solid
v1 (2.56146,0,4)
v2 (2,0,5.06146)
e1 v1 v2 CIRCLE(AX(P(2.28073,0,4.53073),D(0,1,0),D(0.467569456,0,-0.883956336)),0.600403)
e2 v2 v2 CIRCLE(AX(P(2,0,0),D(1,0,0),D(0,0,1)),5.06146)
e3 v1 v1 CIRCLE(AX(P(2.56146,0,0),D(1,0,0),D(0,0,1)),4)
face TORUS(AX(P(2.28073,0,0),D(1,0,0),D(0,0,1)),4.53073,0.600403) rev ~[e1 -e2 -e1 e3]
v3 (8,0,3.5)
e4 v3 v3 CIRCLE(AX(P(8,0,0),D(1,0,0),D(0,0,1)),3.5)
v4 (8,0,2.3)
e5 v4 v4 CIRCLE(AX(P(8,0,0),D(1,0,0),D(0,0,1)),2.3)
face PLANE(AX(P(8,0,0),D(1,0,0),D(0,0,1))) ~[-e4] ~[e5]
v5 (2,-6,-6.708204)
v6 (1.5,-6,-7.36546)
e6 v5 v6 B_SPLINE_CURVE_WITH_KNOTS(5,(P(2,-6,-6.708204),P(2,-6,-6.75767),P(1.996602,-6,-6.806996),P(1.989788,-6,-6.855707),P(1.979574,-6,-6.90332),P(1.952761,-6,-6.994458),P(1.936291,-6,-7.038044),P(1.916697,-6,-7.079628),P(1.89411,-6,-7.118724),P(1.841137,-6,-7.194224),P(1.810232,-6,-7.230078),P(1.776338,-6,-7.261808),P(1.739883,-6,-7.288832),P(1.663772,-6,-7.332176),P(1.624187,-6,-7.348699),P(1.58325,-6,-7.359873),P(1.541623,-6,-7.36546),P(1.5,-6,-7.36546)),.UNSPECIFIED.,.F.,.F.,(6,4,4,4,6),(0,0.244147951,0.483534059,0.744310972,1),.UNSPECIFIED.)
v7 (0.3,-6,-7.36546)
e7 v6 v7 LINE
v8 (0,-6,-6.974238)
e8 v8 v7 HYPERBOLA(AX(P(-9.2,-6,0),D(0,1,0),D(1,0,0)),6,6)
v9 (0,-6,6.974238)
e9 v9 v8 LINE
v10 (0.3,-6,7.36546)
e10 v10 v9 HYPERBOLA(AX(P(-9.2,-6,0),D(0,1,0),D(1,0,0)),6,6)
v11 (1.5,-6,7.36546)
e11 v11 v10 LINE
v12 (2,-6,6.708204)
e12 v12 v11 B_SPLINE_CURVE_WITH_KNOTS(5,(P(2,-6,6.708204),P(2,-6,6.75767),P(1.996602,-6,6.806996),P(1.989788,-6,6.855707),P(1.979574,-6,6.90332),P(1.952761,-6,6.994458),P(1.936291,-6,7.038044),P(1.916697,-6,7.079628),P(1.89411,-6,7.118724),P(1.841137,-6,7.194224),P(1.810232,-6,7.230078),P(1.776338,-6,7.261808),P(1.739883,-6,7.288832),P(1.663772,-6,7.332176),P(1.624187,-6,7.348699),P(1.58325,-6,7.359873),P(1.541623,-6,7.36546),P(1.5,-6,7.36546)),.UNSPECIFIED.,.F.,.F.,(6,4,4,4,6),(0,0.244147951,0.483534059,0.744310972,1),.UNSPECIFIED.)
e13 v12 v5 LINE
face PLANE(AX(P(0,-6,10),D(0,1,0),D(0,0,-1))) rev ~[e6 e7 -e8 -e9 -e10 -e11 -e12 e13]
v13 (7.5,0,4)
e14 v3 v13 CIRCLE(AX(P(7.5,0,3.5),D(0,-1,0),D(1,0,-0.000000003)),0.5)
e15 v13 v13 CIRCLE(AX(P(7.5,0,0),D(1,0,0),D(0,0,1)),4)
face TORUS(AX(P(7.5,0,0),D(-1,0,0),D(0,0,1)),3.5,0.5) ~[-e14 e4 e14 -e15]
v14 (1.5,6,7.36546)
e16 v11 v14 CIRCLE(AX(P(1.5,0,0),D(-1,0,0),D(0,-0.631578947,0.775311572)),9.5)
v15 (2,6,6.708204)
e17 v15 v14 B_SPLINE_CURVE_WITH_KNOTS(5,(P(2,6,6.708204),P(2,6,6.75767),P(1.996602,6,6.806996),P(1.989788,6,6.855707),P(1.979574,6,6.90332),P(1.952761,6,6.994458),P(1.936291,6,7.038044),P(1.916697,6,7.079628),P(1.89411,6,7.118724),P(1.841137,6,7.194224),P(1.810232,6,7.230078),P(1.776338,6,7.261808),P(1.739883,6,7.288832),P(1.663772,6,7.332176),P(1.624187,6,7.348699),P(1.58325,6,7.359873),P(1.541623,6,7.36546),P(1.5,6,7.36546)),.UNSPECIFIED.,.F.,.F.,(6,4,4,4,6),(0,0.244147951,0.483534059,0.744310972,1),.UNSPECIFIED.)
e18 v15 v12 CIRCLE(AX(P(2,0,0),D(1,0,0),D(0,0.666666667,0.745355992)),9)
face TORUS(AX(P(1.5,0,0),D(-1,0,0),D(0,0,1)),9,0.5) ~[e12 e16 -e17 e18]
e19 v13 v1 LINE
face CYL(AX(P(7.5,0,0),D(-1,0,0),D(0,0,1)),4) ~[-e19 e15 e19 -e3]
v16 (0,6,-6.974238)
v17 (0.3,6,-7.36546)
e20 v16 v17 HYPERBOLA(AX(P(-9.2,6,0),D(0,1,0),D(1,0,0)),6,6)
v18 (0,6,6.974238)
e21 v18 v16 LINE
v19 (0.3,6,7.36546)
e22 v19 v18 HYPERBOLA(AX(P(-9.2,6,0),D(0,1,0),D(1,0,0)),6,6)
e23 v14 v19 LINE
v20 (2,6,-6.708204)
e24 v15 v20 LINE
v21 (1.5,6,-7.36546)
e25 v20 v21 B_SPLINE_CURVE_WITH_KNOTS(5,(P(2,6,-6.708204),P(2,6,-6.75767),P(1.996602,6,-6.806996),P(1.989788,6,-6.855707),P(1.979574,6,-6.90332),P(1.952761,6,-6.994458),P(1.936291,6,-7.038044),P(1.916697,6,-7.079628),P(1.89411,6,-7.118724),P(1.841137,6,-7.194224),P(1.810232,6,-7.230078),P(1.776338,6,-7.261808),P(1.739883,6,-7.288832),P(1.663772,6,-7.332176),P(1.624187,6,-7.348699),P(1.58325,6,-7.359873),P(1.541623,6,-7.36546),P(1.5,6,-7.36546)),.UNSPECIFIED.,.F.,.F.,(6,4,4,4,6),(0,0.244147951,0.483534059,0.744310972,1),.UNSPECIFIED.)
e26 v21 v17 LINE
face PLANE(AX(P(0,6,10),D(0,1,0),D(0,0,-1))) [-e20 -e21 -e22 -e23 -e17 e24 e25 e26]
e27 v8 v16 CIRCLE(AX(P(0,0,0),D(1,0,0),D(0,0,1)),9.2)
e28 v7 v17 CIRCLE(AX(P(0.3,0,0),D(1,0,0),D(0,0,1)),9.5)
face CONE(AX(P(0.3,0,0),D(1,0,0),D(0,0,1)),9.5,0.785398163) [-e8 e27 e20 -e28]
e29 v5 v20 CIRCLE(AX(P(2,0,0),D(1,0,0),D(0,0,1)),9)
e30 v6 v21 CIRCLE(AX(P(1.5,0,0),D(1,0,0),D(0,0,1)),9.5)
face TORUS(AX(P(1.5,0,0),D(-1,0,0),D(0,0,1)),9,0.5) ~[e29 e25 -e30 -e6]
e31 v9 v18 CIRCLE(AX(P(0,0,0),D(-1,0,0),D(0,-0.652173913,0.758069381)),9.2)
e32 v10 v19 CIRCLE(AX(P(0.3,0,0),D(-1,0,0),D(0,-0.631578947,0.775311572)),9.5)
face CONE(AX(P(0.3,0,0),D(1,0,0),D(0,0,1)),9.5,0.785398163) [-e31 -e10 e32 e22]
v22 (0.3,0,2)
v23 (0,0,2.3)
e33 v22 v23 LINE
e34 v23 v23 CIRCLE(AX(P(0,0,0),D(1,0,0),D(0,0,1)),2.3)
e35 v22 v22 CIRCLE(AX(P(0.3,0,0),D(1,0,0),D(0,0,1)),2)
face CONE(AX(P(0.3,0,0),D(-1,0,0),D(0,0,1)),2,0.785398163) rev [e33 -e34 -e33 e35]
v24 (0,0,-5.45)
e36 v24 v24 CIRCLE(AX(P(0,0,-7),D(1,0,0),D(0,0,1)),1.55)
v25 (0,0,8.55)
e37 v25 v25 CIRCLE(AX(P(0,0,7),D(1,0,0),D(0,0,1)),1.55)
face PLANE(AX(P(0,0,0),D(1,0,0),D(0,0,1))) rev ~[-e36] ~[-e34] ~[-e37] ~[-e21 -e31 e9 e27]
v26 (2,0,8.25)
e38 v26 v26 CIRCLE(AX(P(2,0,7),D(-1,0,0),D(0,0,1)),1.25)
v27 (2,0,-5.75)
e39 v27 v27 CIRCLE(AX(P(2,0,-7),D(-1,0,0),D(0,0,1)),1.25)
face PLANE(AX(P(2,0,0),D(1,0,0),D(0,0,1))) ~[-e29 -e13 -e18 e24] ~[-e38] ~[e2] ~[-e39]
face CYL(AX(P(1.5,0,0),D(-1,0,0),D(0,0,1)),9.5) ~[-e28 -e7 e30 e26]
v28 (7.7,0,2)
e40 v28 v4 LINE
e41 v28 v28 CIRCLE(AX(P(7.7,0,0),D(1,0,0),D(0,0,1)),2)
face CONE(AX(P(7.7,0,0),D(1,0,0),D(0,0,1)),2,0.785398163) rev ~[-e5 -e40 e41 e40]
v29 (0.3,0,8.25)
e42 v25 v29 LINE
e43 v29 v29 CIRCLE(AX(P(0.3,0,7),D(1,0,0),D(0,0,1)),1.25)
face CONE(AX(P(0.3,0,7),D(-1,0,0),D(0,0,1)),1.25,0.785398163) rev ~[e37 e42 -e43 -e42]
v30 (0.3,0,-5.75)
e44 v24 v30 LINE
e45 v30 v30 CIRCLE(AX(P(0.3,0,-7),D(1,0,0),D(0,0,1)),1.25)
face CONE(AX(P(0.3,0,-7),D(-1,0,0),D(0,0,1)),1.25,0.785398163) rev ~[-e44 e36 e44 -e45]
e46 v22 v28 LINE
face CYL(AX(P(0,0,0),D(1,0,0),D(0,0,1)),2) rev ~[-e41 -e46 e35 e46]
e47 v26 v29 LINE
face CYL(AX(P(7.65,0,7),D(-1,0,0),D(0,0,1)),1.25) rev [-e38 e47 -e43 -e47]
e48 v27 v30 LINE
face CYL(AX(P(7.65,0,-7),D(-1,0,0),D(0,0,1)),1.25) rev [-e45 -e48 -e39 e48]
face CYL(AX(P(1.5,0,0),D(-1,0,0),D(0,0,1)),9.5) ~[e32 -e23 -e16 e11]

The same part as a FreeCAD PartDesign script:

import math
import FreeCAD as App
import Part
import Sketcher
from FreeCAD import Vector
Q = App.Units.Quantity


def edges_at(feature, points):
    """Names of the edges that pass closest to the given points."""
    edges = feature.Shape.Edges
    near = lambda p: min(range(len(edges)), key=lambda i: edges[i].distToShape(Part.Vertex(*p))[0])
    return sorted({f"Edge{near(p) + 1}" for p in points})


def add_polygon(sketch, points):
    """Adds a closed chain of lines whose ends are joined by coincident constraints."""
    first, n = sketch.GeometryCount, len(points)
    for a, b in zip(points, points[1:] + points[:1]):
        sketch.addGeometry(Part.LineSegment(App.Vector(*a, 0), App.Vector(*b, 0)), False)
    for i in range(n):
        sketch.addConstraint(Sketcher.Constraint("Coincident", first + i, 2, first + (i + 1) % n, 1))

doc = App.newDocument("Part")
params = doc.addObject("Spreadsheet::Sheet", "Params")
for row, (alias, value) in enumerate([
    ("sketch1_radius", "0.5 mm"),
    ("sketch1_width", "8 mm"),
    ("sketch1_width2", "1.5 mm"),
    ("sketch1_height", "7.5 mm"),
    ("revolution_angle", "360 deg"),
    ("sketch2_width", "8 mm"),
    ("sketch2_height", "1.6 mm"),
    ("sketch2_width2", "7.65 mm"),
    ("groove_angle", "360 deg"),
    ("linearpattern_pitch", "14 mm"),
    ("chamfer_size", "0.3 mm"),
    ("sketch3_width", "12 mm"),
    ("sketch3_height", "20 mm"),
    ("pocket1_length", "10 mm"),
], start=1):
    params.set(f"A{row}", alias)
    params.set(f"B{row}", "=" + value)
    params.setAlias(f"B{row}", alias)

body = doc.addObject("PartDesign::Body", "Body")

# Sketch on XY plane
sketch1 = body.newObject("Sketcher::SketchObject", "Sketch")
sketch1.AttachmentSupport = (doc.getObject("XY_Plane"), [""])
sketch1.MapMode = "FlatFace"
sketch1.addGeometry(Part.LineSegment(Vector(0, 2, 0), Vector(8, 2, 0)), False)
sketch1.addGeometry(Part.LineSegment(Vector(8, 2, 0), Vector(8, 3.5, 0)), False)
sketch1.addGeometry(Part.ArcOfCircle(Part.Circle(Vector(7.5, 3.5, 0), Vector(0, 0, 1), 0.5), math.radians(0), math.radians(90)), False)
sketch1.addGeometry(Part.LineSegment(Vector(7.5, 4, 0), Vector(2.56146, 4, 0)), False)
sketch1.addGeometry(Part.ArcOfCircle(Part.Circle(Vector(2.28073, 4.53073, 0), Vector(0, 0, 1), 0.600403), math.radians(117.87664), math.radians(297.87664)), False)
sketch1.addGeometry(Part.LineSegment(Vector(2, 5.06146, 0), Vector(2, 9, 0)), False)
sketch1.addGeometry(Part.ArcOfCircle(Part.Circle(Vector(1.5, 9, 0), Vector(0, 0, 1), 0.5), math.radians(0), math.radians(90)), False)
sketch1.addGeometry(Part.LineSegment(Vector(1.5, 9.5, 0), Vector(0, 9.5, 0)), False)
sketch1.addGeometry(Part.LineSegment(Vector(0, 9.5, 0), Vector(0, 2, 0)), False)
sketch1.addConstraint(Sketcher.Constraint("Coincident", 0, 2, 1, 1))
sketch1.addConstraint(Sketcher.Constraint("Tangent", 1, 2, 2, 1))
sketch1.addConstraint(Sketcher.Constraint("Tangent", 2, 2, 3, 1))
sketch1.addConstraint(Sketcher.Constraint("Coincident", 3, 2, 4, 2))
sketch1.addConstraint(Sketcher.Constraint("Coincident", 4, 1, 5, 1))
sketch1.addConstraint(Sketcher.Constraint("Tangent", 5, 2, 6, 1))
sketch1.addConstraint(Sketcher.Constraint("Tangent", 6, 2, 7, 1))
sketch1.addConstraint(Sketcher.Constraint("Coincident", 7, 2, 8, 1))
sketch1.addConstraint(Sketcher.Constraint("Coincident", 8, 2, 0, 1))
sketch1.addConstraint(Sketcher.Constraint("Horizontal", 0))
sketch1.addConstraint(Sketcher.Constraint("Vertical", 1))
sketch1.addConstraint(Sketcher.Constraint("Horizontal", 3))
sketch1.addConstraint(Sketcher.Constraint("Vertical", 5))
sketch1.addConstraint(Sketcher.Constraint("Horizontal", 7))
sketch1.addConstraint(Sketcher.Constraint("Vertical", 8))
sketch1.addConstraint(Sketcher.Constraint("Equal", 2, 6))
sketch1.addConstraint(Sketcher.Constraint("PointOnObject", 7, 2, -2))
sketch1.addConstraint(Sketcher.Constraint("Equal", 7, 1))
sketch1.addConstraint(Sketcher.Constraint("Radius", 2, Q("0.5 mm")))
sketch1.addConstraint(Sketcher.Constraint("DistanceX", 0, 1, 0, 2, Q("8 mm")))
sketch1.addConstraint(Sketcher.Constraint("DistanceX", 7, 2, 7, 1, Q("1.5 mm")))
sketch1.addConstraint(Sketcher.Constraint("DistanceY", 8, 2, 8, 1, Q("7.5 mm")))
sketch1.addConstraint(Sketcher.Constraint("DistanceY", -1, 1, 6, 3, Q("9 mm")))
sketch1.addConstraint(Sketcher.Constraint("Radius", 4, Q("0.600403 mm")))
sketch1.addConstraint(Sketcher.Constraint("DistanceX", 3, 2, 3, 1, Q("4.93854 mm")))
sketch1.addConstraint(Sketcher.Constraint("DistanceX", -1, 1, 4, 3, Q("2.28073 mm")))
sketch1.setExpression("Constraints[18]", "Params.sketch1_radius")
sketch1.setExpression("Constraints[19]", "Params.sketch1_width")
sketch1.setExpression("Constraints[20]", "Params.sketch1_width2")
sketch1.setExpression("Constraints[21]", "Params.sketch1_height")
revolution = body.newObject("PartDesign::Revolution", "Revolution")
revolution.Profile = sketch1
revolution.ReferenceAxis = (sketch1, ["H_Axis"])
revolution.setExpression("Angle", "Params.revolution_angle")

# Sketch on XZ plane
sketch2 = body.newObject("Sketcher::SketchObject", "Sketch001")
sketch2.AttachmentSupport = (doc.getObject("XZ_Plane"), [""])
sketch2.MapMode = "FlatFace"
add_polygon(sketch2, [(8, -7), (0, -7), (0, -5.75), (7.65, -5.75), (8, -5.4)])  # lines 0-4
sketch2.addGeometry(Part.LineSegment(Vector(0, -7, 0), Vector(8, -7, 0)), True)  # axis
sketch2.addConstraint(Sketcher.Constraint("Horizontal", 0))
sketch2.addConstraint(Sketcher.Constraint("Vertical", 1))
sketch2.addConstraint(Sketcher.Constraint("Horizontal", 2))
sketch2.addConstraint(Sketcher.Constraint("Vertical", 4))
sketch2.addConstraint(Sketcher.Constraint("Horizontal", 5))
sketch2.addConstraint(Sketcher.Constraint("Coincident", 5, 1, 0, 2))
sketch2.addConstraint(Sketcher.Constraint("PointOnObject", 0, 2, -2))
sketch2.addConstraint(Sketcher.Constraint("Vertical", 3, 2, 5, 2))
sketch2.addConstraint(Sketcher.Constraint("DistanceX", 0, 2, 0, 1, Q("8 mm")))
sketch2.addConstraint(Sketcher.Constraint("Angle", 3, Q("45 deg")))
sketch2.addConstraint(Sketcher.Constraint("DistanceY", 4, 2, 4, 1, Q("1.6 mm")))
sketch2.addConstraint(Sketcher.Constraint("DistanceY", 0, 2, -1, 1, Q("7 mm")))
sketch2.addConstraint(Sketcher.Constraint("DistanceX", 2, 1, 2, 2, Q("7.65 mm")))
sketch2.setExpression("Constraints[13]", "Params.sketch2_width")
sketch2.setExpression("Constraints[15]", "Params.sketch2_height")
sketch2.setExpression("Constraints[17]", "Params.sketch2_width2")
groove = body.newObject("PartDesign::Groove", "Groove")
groove.Profile = sketch2
groove.ReferenceAxis = (sketch2, ["Axis0"])
groove.setExpression("Angle", "Params.groove_angle")
doc.recompute()

linearpattern = body.newObject("PartDesign::LinearPattern", "LinearPattern")
linearpattern.Originals = [groove]
linearpattern.Direction = (doc.getObject("Z_Axis"), [""])
linearpattern.Mode = "offset"
linearpattern.setExpression("Offset", "Params.linearpattern_pitch")
linearpattern.Occurrences = 2
body.Tip = linearpattern
doc.recompute()

chamfer = body.newObject("PartDesign::Chamfer", "Chamfer")
chamfer.Base = (linearpattern, edges_at(linearpattern, [
    (0, 0, -2),
    (0, 0, 5.75),
    (0, 0, -8.25),
    (0, 0, -9.5),
    (8, 0, -2),
]))
chamfer.setExpression("Size", "Params.chamfer_size")

# Sketch on YZ plane
sketch3 = body.newObject("Sketcher::SketchObject", "Sketch002")
sketch3.AttachmentSupport = (doc.getObject("YZ_Plane"), [""])
sketch3.MapMode = "FlatFace"
add_polygon(sketch3, [(10.973306, 13.163339), (-10.973306, 13.163339), (-10.973306, -13.163339), (10.973306, -13.163339)])  # lines 0-3
add_polygon(sketch3, [(-6, -10), (-6, 10), (6, 10), (6, -10)])  # lines 4-7
sketch3.addConstraint(Sketcher.Constraint("Horizontal", 0))
sketch3.addConstraint(Sketcher.Constraint("Vertical", 1))
sketch3.addConstraint(Sketcher.Constraint("Horizontal", 2))
sketch3.addConstraint(Sketcher.Constraint("Vertical", 3))
sketch3.addConstraint(Sketcher.Constraint("Vertical", 4))
sketch3.addConstraint(Sketcher.Constraint("Horizontal", 5))
sketch3.addConstraint(Sketcher.Constraint("Vertical", 6))
sketch3.addConstraint(Sketcher.Constraint("Horizontal", 7))
sketch3.addConstraint(Sketcher.Constraint("Symmetric", 0, 2, 2, 2, -1, 1))
sketch3.addConstraint(Sketcher.Constraint("Symmetric", 4, 2, 6, 2, -1, 1))
sketch3.addConstraint(Sketcher.Constraint("DistanceX", 5, 1, 5, 2, Q("12 mm")))
sketch3.addConstraint(Sketcher.Constraint("DistanceY", 4, 1, 4, 2, Q("20 mm")))
sketch3.addConstraint(Sketcher.Constraint("DistanceY", 1, 2, 1, 1, Q("26.326679 mm")))
sketch3.addConstraint(Sketcher.Constraint("DistanceX", 0, 2, 0, 1, Q("21.946613 mm")))
sketch3.setExpression("Constraints[18]", "Params.sketch3_width")
sketch3.setExpression("Constraints[19]", "Params.sketch3_height")
pocket1 = body.newObject("PartDesign::Pocket", "Pocket")
pocket1.Profile = sketch3
pocket1.setExpression("Length", "Params.pocket1_length")
pocket1.Reversed = True

doc.recompute()
